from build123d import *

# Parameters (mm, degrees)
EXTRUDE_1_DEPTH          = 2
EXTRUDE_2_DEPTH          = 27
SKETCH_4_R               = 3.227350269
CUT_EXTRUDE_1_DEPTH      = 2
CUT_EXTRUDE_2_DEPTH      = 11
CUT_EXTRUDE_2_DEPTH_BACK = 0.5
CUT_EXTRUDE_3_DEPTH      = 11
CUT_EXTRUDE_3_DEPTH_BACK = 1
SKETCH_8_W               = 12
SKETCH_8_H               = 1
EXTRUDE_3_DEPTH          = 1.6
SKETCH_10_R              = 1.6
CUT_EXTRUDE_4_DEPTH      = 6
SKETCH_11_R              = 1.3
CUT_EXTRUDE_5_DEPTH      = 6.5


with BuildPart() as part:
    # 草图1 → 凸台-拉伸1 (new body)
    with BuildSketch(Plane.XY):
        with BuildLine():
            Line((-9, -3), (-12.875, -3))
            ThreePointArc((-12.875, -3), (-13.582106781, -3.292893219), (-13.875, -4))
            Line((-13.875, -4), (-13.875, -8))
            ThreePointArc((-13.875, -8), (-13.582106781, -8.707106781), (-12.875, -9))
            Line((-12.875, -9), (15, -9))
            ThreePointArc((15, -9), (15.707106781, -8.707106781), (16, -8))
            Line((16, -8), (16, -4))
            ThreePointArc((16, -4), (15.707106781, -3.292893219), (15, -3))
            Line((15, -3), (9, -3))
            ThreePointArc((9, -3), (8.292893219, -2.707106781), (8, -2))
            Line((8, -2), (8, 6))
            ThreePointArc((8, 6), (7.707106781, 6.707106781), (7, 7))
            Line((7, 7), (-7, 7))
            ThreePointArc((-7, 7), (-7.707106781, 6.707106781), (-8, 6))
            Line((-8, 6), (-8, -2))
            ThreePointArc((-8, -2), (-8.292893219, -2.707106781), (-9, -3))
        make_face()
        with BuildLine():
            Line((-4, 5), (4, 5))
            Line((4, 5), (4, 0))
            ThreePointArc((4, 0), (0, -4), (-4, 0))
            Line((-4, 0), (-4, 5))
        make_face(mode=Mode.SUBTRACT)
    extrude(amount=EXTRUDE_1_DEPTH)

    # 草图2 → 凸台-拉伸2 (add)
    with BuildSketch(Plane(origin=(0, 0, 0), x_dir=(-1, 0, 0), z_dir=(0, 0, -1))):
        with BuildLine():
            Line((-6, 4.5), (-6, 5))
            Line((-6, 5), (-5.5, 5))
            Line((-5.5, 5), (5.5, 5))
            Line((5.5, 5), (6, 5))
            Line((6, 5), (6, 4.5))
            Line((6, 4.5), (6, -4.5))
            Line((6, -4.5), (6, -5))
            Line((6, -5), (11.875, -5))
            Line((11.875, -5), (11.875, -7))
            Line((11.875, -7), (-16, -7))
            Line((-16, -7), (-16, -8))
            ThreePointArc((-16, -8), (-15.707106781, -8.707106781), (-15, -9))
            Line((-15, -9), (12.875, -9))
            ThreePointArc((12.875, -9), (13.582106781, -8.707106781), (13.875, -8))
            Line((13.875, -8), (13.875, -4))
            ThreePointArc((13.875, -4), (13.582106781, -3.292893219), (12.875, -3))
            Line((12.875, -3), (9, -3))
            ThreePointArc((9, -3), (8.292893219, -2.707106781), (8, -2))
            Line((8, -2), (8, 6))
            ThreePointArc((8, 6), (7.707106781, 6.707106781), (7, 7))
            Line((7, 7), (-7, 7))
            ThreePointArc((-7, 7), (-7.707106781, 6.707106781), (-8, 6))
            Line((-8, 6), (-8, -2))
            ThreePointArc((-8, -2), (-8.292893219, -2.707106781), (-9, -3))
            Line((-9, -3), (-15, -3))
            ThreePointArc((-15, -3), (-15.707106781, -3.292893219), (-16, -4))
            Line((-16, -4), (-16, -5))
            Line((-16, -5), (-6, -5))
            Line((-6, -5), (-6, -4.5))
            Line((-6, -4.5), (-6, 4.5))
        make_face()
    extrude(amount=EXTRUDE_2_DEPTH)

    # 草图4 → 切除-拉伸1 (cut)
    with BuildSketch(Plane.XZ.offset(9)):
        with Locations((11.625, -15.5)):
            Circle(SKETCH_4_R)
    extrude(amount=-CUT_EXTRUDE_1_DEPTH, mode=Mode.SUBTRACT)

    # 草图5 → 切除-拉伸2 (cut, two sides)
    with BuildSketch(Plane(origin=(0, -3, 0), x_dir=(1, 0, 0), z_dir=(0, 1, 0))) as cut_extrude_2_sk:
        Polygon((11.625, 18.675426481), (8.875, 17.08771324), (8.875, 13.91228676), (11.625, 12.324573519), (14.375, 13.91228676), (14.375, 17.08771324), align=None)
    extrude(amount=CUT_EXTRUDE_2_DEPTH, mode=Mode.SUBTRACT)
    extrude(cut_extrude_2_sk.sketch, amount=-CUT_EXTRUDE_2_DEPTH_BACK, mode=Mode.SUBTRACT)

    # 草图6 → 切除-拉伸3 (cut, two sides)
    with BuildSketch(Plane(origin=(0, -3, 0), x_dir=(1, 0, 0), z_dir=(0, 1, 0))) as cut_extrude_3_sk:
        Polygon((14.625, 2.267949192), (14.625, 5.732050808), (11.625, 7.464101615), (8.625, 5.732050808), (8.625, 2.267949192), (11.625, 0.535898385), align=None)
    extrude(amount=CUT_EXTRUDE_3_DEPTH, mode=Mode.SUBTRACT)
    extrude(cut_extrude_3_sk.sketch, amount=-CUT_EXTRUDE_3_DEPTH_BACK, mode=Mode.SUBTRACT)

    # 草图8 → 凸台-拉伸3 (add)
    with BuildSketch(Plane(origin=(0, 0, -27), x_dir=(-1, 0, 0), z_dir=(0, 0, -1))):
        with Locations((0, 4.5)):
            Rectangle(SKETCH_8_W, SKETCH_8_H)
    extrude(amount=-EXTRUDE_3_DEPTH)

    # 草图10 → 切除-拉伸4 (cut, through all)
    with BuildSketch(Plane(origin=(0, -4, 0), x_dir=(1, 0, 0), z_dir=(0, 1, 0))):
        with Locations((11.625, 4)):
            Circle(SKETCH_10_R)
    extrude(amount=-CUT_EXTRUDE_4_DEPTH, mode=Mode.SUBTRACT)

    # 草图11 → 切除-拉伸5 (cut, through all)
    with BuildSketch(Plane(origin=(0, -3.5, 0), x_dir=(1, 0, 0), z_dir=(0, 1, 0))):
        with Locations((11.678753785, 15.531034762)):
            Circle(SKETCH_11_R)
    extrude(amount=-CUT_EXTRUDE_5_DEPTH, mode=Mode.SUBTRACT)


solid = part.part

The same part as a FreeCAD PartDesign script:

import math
import FreeCAD as App
import Part
import Sketcher
from FreeCAD import Vector
Q = App.Units.Quantity

doc = App.newDocument("Part")
body = doc.addObject("PartDesign::Body", "Body")

sketch1 = body.newObject("Sketcher::SketchObject", "Sketch")
sketch1.AttachmentSupport = (doc.getObject("XY_Plane"), [""])
sketch1.MapMode = "FlatFace"
sketch1.addGeometry([
    Part.LineSegment(Vector(-9, -3, 0), Vector(-12.9, -3, 0)),
    Part.ArcOfCircle(Part.Circle(Vector(-12.9, -4, 0), Vector(0, 0, 1), 1), math.radians(90), math.radians(180)),
    Part.LineSegment(Vector(-13.9, -4, 0), Vector(-13.9, -8, 0)),
    Part.ArcOfCircle(Part.Circle(Vector(-12.9, -8, 0), Vector(0, 0, 1), 1), math.radians(-180), math.radians(-90)),
    Part.LineSegment(Vector(-12.9, -9, 0), Vector(15, -9, 0)),
    Part.ArcOfCircle(Part.Circle(Vector(15, -8, 0), Vector(0, 0, 1), 1), math.radians(-90), math.radians(0)),
    Part.LineSegment(Vector(16, -8, 0), Vector(16, -4, 0)),
    Part.ArcOfCircle(Part.Circle(Vector(15, -4, 0), Vector(0, 0, 1), 1), math.radians(0), math.radians(90)),
    Part.LineSegment(Vector(15, -3, 0), Vector(9, -3, 0)),
    Part.ArcOfCircle(Part.Circle(Vector(9, -2, 0), Vector(0, 0, 1), 1), math.radians(-180), math.radians(-90)),
    Part.LineSegment(Vector(8, -2, 0), Vector(8, 6, 0)),
    Part.ArcOfCircle(Part.Circle(Vector(7, 6, 0), Vector(0, 0, 1), 1), math.radians(0), math.radians(90)),
    Part.LineSegment(Vector(7, 7, 0), Vector(-7, 7, 0)),
    Part.ArcOfCircle(Part.Circle(Vector(-7, 6, 0), Vector(0, 0, 1), 1), math.radians(90), math.radians(180)),
    Part.LineSegment(Vector(-8, 6, 0), Vector(-8, -2, 0)),
    Part.ArcOfCircle(Part.Circle(Vector(-9, -2, 0), Vector(0, 0, 1), 1), math.radians(-90), math.radians(0)),
    Part.LineSegment(Vector(-4, 0, 0), Vector(-4, 5, 0)),
    Part.LineSegment(Vector(-4, 5, 0), Vector(4, 5, 0)),
    Part.LineSegment(Vector(4, 5, 0), Vector(4, 0, 0)),
    Part.ArcOfCircle(Part.Circle(Vector(0, 0, 0), Vector(0, 0, 1), 4), math.radians(180), math.radians(360)),
], False)
sketch1.addConstraint([
    Sketcher.Constraint("Tangent", 0, 2, 1, 1),
    Sketcher.Constraint("Tangent", 1, 2, 2, 1),
    Sketcher.Constraint("Tangent", 2, 2, 3, 1),
    Sketcher.Constraint("Tangent", 3, 2, 4, 1),
    Sketcher.Constraint("Tangent", 4, 2, 5, 1),
    Sketcher.Constraint("Tangent", 5, 2, 6, 1),
    Sketcher.Constraint("Tangent", 6, 2, 7, 1),
    Sketcher.Constraint("Tangent", 7, 2, 8, 1),
    Sketcher.Constraint("Tangent", 8, 2, 9, 2),
    Sketcher.Constraint("Tangent", 9, 1, 10, 1),
    Sketcher.Constraint("Tangent", 10, 2, 11, 1),
    Sketcher.Constraint("Tangent", 11, 2, 12, 1),
    Sketcher.Constraint("Tangent", 12, 2, 13, 1),
    Sketcher.Constraint("Tangent", 13, 2, 14, 1),
    Sketcher.Constraint("Tangent", 14, 2, 15, 2),
    Sketcher.Constraint("Tangent", 15, 1, 0, 1),
    Sketcher.Constraint("Coincident", 16, 2, 17, 1),
    Sketcher.Constraint("Coincident", 17, 2, 18, 1),
    Sketcher.Constraint("Tangent", 18, 2, 19, 2),
    Sketcher.Constraint("Tangent", 19, 1, 16, 1),
    Sketcher.Constraint("Horizontal", 0),
    Sketcher.Constraint("Vertical", 2),
    Sketcher.Constraint("Horizontal", 4),
    Sketcher.Constraint("Vertical", 6),
    Sketcher.Constraint("Horizontal", 8),
    Sketcher.Constraint("Vertical", 10),
    Sketcher.Constraint("Horizontal", 12),
    Sketcher.Constraint("Vertical", 14),
    Sketcher.Constraint("Vertical", 16),
    Sketcher.Constraint("Horizontal", 17),
    Sketcher.Constraint("Vertical", 18),
    Sketcher.Constraint("Coincident", 19, 3, -1, 1),
    Sketcher.Constraint("Equal", 1, 3),
    Sketcher.Constraint("Equal", 3, 5),
    Sketcher.Constraint("Equal", 5, 7),
    Sketcher.Constraint("Equal", 7, 9),
    Sketcher.Constraint("Equal", 9, 11),
    Sketcher.Constraint("Equal", 11, 13),
    Sketcher.Constraint("Equal", 13, 15),
    Sketcher.Constraint("Symmetric", 9, 3, 15, 3, -2),
    Sketcher.Constraint("Equal", 17, 10),
    Sketcher.Constraint("Radius", 1, Q("1 mm")),
    Sketcher.Constraint("Radius", 19, Q("4 mm")),
    Sketcher.Constraint("DistanceX", 8, 2, 8, 1, Q("6 mm")),
    Sketcher.Constraint("DistanceX", 12, 2, 12, 1, Q("14 mm")),
    Sketcher.Constraint("DistanceY", 2, 2, 2, 1, Q("4 mm")),
    Sketcher.Constraint("DistanceY", 16, 1, 16, 2, Q("5 mm")),
    Sketcher.Constraint("DistanceY", 1, 3, -1, 1, Q("4 mm")),
    Sketcher.Constraint("DistanceX", 0, 2, 0, 1, Q("3.875 mm")),
])
pad1 = body.newObject("PartDesign::Pad", "Pad")
pad1.Profile = sketch1
pad1.Length = 2

sketch2 = body.newObject("Sketcher::SketchObject", "Sketch001")
sketch2.AttachmentSupport = (doc.getObject("XY_Plane"), [""])
sketch2.MapMode = "FlatFace"
sketch2.addGeometry([
    Part.LineSegment(Vector(6, 5, 0), Vector(-6, 5, 0)),
    Part.LineSegment(Vector(-6, 5, 0), Vector(-6, -5, 0)),
    Part.LineSegment(Vector(-6, -5, 0), Vector(-11.9, -5, 0)),
    Part.LineSegment(Vector(-11.9, -5, 0), Vector(-11.9, -7, 0)),
    Part.LineSegment(Vector(-11.9, -7, 0), Vector(16, -7, 0)),
    Part.LineSegment(Vector(16, -7, 0), Vector(16, -8, 0)),
    Part.ArcOfCircle(Part.Circle(Vector(15, -8, 0), Vector(0, 0, 1), 1), math.radians(-90), math.radians(0)),
    Part.LineSegment(Vector(15, -9, 0), Vector(-12.9, -9, 0)),
    Part.ArcOfCircle(Part.Circle(Vector(-12.9, -8, 0), Vector(0, 0, 1), 1), math.radians(-180), math.radians(-90)),
    Part.LineSegment(Vector(-13.9, -8, 0), Vector(-13.9, -4, 0)),
    Part.ArcOfCircle(Part.Circle(Vector(-12.9, -4, 0), Vector(0, 0, 1), 1), math.radians(90), math.radians(180)),
    Part.LineSegment(Vector(-12.9, -3, 0), Vector(-9, -3, 0)),
    Part.ArcOfCircle(Part.Circle(Vector(-9, -2, 0), Vector(0, 0, 1), 1), math.radians(-90), math.radians(0)),
    Part.LineSegment(Vector(-8, -2, 0), Vector(-8, 6, 0)),
    Part.ArcOfCircle(Part.Circle(Vector(-7, 6, 0), Vector(0, 0, 1), 1), math.radians(90), math.radians(180)),
    Part.LineSegment(Vector(-7, 7, 0), Vector(7, 7, 0)),
    Part.ArcOfCircle(Part.Circle(Vector(7, 6, 0), Vector(0, 0, 1), 1), math.radians(0), math.radians(90)),
    Part.LineSegment(Vector(8, 6, 0), Vector(8, -2, 0)),
    Part.ArcOfCircle(Part.Circle(Vector(9, -2, 0), Vector(0, 0, 1), 1), math.radians(-180), math.radians(-90)),
    Part.LineSegment(Vector(9, -3, 0), Vector(15, -3, 0)),
    Part.ArcOfCircle(Part.Circle(Vector(15, -4, 0), Vector(0, 0, 1), 1), math.radians(0), math.radians(90)),
    Part.LineSegment(Vector(16, -4, 0), Vector(16, -5, 0)),
    Part.LineSegment(Vector(16, -5, 0), Vector(6, -5, 0)),
    Part.LineSegment(Vector(6, -5, 0), Vector(6, 5, 0)),
], False)
sketch2.addConstraint([
    Sketcher.Constraint("Coincident", 0, 2, 1, 1),
    Sketcher.Constraint("Coincident", 1, 2, 2, 1),
    Sketcher.Constraint("Coincident", 2, 2, 3, 1),
    Sketcher.Constraint("Coincident", 3, 2, 4, 1),
    Sketcher.Constraint("Coincident", 4, 2, 5, 1),
    Sketcher.Constraint("Tangent", 5, 2, 6, 2),
    Sketcher.Constraint("Tangent", 6, 1, 7, 1),
    Sketcher.Constraint("Tangent", 7, 2, 8, 2),
    Sketcher.Constraint("Tangent", 8, 1, 9, 1),
    Sketcher.Constraint("Tangent", 9, 2, 10, 2),
    Sketcher.Constraint("Tangent", 10, 1, 11, 1),
    Sketcher.Constraint("Tangent", 11, 2, 12, 1),
    Sketcher.Constraint("Tangent", 12, 2, 13, 1),
    Sketcher.Constraint("Tangent", 13, 2, 14, 2),
    Sketcher.Constraint("Tangent", 14, 1, 15, 1),
    Sketcher.Constraint("Tangent", 15, 2, 16, 2),
    Sketcher.Constraint("Tangent", 16, 1, 17, 1),
    Sketcher.Constraint("Tangent", 17, 2, 18, 1),
    Sketcher.Constraint("Tangent", 18, 2, 19, 1),
    Sketcher.Constraint("Tangent", 19, 2, 20, 2),
    Sketcher.Constraint("Tangent", 20, 1, 21, 1),
    Sketcher.Constraint("Coincident", 21, 2, 22, 1),
    Sketcher.Constraint("Coincident", 22, 2, 23, 1),
    Sketcher.Constraint("Coincident", 23, 2, 0, 1),
    Sketcher.Constraint("Horizontal", 0),
    Sketcher.Constraint("Vertical", 1),
    Sketcher.Constraint("Horizontal", 2),
    Sketcher.Constraint("Vertical", 3),
    Sketcher.Constraint("Horizontal", 4),
    Sketcher.Constraint("Vertical", 5),
    Sketcher.Constraint("Horizontal", 7),
    Sketcher.Constraint("Vertical", 9),
    Sketcher.Constraint("Horizontal", 11),
    Sketcher.Constraint("Vertical", 13),
    Sketcher.Constraint("Horizontal", 15),
    Sketcher.Constraint("Vertical", 17),
    Sketcher.Constraint("Horizontal", 19),
    Sketcher.Constraint("Vertical", 21),
    Sketcher.Constraint("Horizontal", 22),
    Sketcher.Constraint("Vertical", 23),
    Sketcher.Constraint("Equal", 6, 8),
    Sketcher.Constraint("Equal", 8, 10),
    Sketcher.Constraint("Equal", 10, 12),
    Sketcher.Constraint("Equal", 12, 14),
    Sketcher.Constraint("Equal", 14, 16),
    Sketcher.Constraint("Equal", 16, 18),
    Sketcher.Constraint("Equal", 18, 20),
    Sketcher.Constraint("Symmetric", 0, 2, 22, 2, -1, 1),
    Sketcher.Constraint("Symmetric", 12, 3, 18, 3, -2),
    Sketcher.Constraint("Horizontal", 2, 2, 21, 2),
    Sketcher.Constraint("Vertical", 6, 3, 20, 3),
    Sketcher.Constraint("Equal", 4, 7),
    Sketcher.Constraint("Equal", 22, 1),
    Sketcher.Constraint("Equal", 5, 21),
    Sketcher.Constraint("Radius", 6, Q("1 mm")),
    Sketcher.Constraint("DistanceX", 0, 2, 0, 1, Q("12 mm")),
    Sketcher.Constraint("DistanceX", 15, 1, 15, 2, Q("14 mm")),
    Sketcher.Constraint("DistanceX", 19, 1, 19, 2, Q("6 mm")),
    Sketcher.Constraint("DistanceY", 3, 2, 3, 1, Q("2 mm")),
    Sketcher.Constraint("DistanceY", 5, 2, 5, 1, Q("1 mm")),
    Sketcher.Constraint("DistanceY", 13, 1, 13, 2, Q("8 mm")),
    Sketcher.Constraint("DistanceX", 2, 2, 2, 1, Q("5.875 mm")),
])
pad2 = body.newObject("PartDesign::Pad", "Pad001")
pad2.Profile = sketch2
pad2.Length = 27
pad2.Reversed = True

sketch3 = body.newObject("Sketcher::SketchObject", "Sketch002")
sketch3.AttachmentSupport = (doc.getObject("XZ_Plane"), [""])
sketch3.MapMode = "FlatFace"
sketch3.AttachmentOffset = App.Placement(Vector(0, 0, 9), App.Rotation())
sketch3.addGeometry(Part.Circle(Vector(11.6, -15.5, 0), Vector(0, 0, 1), 3.2), False)
sketch3.addConstraint([
    Sketcher.Constraint("Diameter", 0, Q("6.454701 mm")),
    Sketcher.Constraint("DistanceY", 0, 3, -1, 1, Q("15.5 mm")),
    Sketcher.Constraint("DistanceX", -1, 1, 0, 3, Q("11.625 mm")),
])
pocket1 = body.newObject("PartDesign::Pocket", "Pocket")
pocket1.Profile = sketch3
pocket1.Length = 2

sketch4 = body.newObject("Sketcher::SketchObject", "Sketch003")
sketch4.AttachmentSupport = (doc.getObject("XZ_Plane"), [""])
sketch4.MapMode = "FlatFace"
sketch4.AttachmentOffset = App.Placement(Vector(0, 0, 3), App.Rotation())
sketch4.addGeometry([
    Part.LineSegment(Vector(11.6, -18.7, 0), Vector(8.9, -17.1, 0)),
    Part.LineSegment(Vector(8.9, -17.1, 0), Vector(8.9, -13.9, 0)),
    Part.LineSegment(Vector(8.9, -13.9, 0), Vector(11.6, -12.3, 0)),
    Part.LineSegment(Vector(11.6, -12.3, 0), Vector(14.4, -13.9, 0)),
    Part.LineSegment(Vector(14.4, -13.9, 0), Vector(14.4, -17.1, 0)),
    Part.LineSegment(Vector(14.4, -17.1, 0), Vector(11.6, -18.7, 0)),
], False)
sketch4.addConstraint([
    Sketcher.Constraint("Coincident", 0, 2, 1, 1),
    Sketcher.Constraint("Coincident", 1, 2, 2, 1),
    Sketcher.Constraint("Coincident", 2, 2, 3, 1),
    Sketcher.Constraint("Coincident", 3, 2, 4, 1),
    Sketcher.Constraint("Coincident", 4, 2, 5, 1),
    Sketcher.Constraint("Coincident", 5, 2, 0, 1),
    Sketcher.Constraint("Vertical", 1),
    Sketcher.Constraint("Vertical", 4),
    Sketcher.Constraint("Parallel", 0, 3),
    Sketcher.Constraint("Parallel", 2, 5),
    Sketcher.Constraint("Horizontal", 1, 2, 3, 2),
    Sketcher.Constraint("Horizontal", 0, 2, 4, 2),
    Sketcher.Constraint("Vertical", 2, 2, 5, 2),
    Sketcher.Constraint("Angle", 0, Q("150 deg")),
    Sketcher.Constraint("DistanceX", 1, 2, 3, 2, Q("5.5 mm")),
    Sketcher.Constraint("DistanceX", -1, 1, 0, 2, Q("8.875 mm")),
    Sketcher.Constraint("DistanceY", 1, 1, 1, 2, Q("3.175426 mm")),
    Sketcher.Constraint("DistanceY", 0, 2, -1, 1, Q("17.087713 mm")),
])
pocket2 = body.newObject("PartDesign::Pocket", "Pocket001")
pocket2.Profile = sketch4
pocket2.Type = "TwoLengths"
pocket2.Length = 11
pocket2.Length2 = 0.5

sketch5 = body.newObject("Sketcher::SketchObject", "Sketch004")
sketch5.AttachmentSupport = (doc.getObject("XZ_Plane"), [""])
sketch5.MapMode = "FlatFace"
sketch5.AttachmentOffset = App.Placement(Vector(0, 0, 3), App.Rotation())
sketch5.addGeometry([
    Part.LineSegment(Vector(14.6, -2.3, 0), Vector(14.6, -5.7, 0)),
    Part.LineSegment(Vector(14.6, -5.7, 0), Vector(11.6, -7.5, 0)),
    Part.LineSegment(Vector(11.6, -7.5, 0), Vector(8.6, -5.7, 0)),
    Part.LineSegment(Vector(8.6, -5.7, 0), Vector(8.6, -2.3, 0)),
    Part.LineSegment(Vector(8.6, -2.3, 0), Vector(11.6, -0.5, 0)),
    Part.LineSegment(Vector(11.6, -0.5, 0), Vector(14.6, -2.3, 0)),
], False)
sketch5.addConstraint([
    Sketcher.Constraint("Coincident", 0, 2, 1, 1),
    Sketcher.Constraint("Coincident", 1, 2, 2, 1),
    Sketcher.Constraint("Coincident", 2, 2, 3, 1),
    Sketcher.Constraint("Coincident", 3, 2, 4, 1),
    Sketcher.Constraint("Coincident", 4, 2, 5, 1),
    Sketcher.Constraint("Coincident", 5, 2, 0, 1),
    Sketcher.Constraint("Vertical", 0),
    Sketcher.Constraint("Vertical", 3),
    Sketcher.Constraint("Parallel", 1, 4),
    Sketcher.Constraint("Parallel", 2, 5),
    Sketcher.Constraint("Horizontal", 0, 2, 2, 2),
    Sketcher.Constraint("Horizontal", 3, 2, 5, 2),
    Sketcher.Constraint("Vertical", 1, 2, 4, 2),
    Sketcher.Constraint("Angle", 1, Q("-150 deg")),
    Sketcher.Constraint("DistanceX", 1, 2, 0, 2, Q("3 mm")),
    Sketcher.Constraint("DistanceY", 0, 2, 0, 1, Q("3.464102 mm")),
    Sketcher.Constraint("DistanceX", -1, 1, 0, 2, Q("14.625 mm")),
    Sketcher.Constraint("DistanceY", 1, 2, -1, 1, Q("7.464102 mm")),
])
pocket3 = body.newObject("PartDesign::Pocket", "Pocket002")
pocket3.Profile = sketch5
pocket3.Type = "TwoLengths"
pocket3.Length = 11
pocket3.Length2 = 1

sketch6 = body.newObject("Sketcher::SketchObject", "Sketch005")
sketch6.AttachmentSupport = (doc.getObject("XY_Plane"), [""])
sketch6.MapMode = "FlatFace"
sketch6.AttachmentOffset = App.Placement(Vector(0, 0, -27), App.Rotation())
sketch6.addGeometry([
    Part.LineSegment(Vector(6, 5, 0), Vector(6, 4, 0)),
    Part.LineSegment(Vector(6, 4, 0), Vector(-6, 4, 0)),
    Part.LineSegment(Vector(-6, 4, 0), Vector(-6, 5, 0)),
    Part.LineSegment(Vector(-6, 5, 0), Vector(6, 5, 0)),
], False)
sketch6.addConstraint([
    Sketcher.Constraint("Coincident", 0, 2, 1, 1),
    Sketcher.Constraint("Coincident", 1, 2, 2, 1),
    Sketcher.Constraint("Coincident", 2, 2, 3, 1),
    Sketcher.Constraint("Coincident", 3, 2, 0, 1),
    Sketcher.Constraint("Vertical", 0),
    Sketcher.Constraint("Horizontal", 1),
    Sketcher.Constraint("Vertical", 2),
    Sketcher.Constraint("Horizontal", 3),
    Sketcher.Constraint("DistanceX", 1, 2, 1, 1, Q("12 mm")),
    Sketcher.Constraint("DistanceY", 0, 2, 0, 1, Q("1 mm")),
    Sketcher.Constraint("DistanceX", -1, 1, 0, 2, Q("6 mm")),
    Sketcher.Constraint("DistanceY", -1, 1, 0, 2, Q("4 mm")),
])
pad3 = body.newObject("PartDesign::Pad", "Pad002")
pad3.Profile = sketch6
pad3.Length = 1.6

sketch7 = body.newObject("Sketcher::SketchObject", "Sketch006")
sketch7.AttachmentSupport = (doc.getObject("XZ_Plane"), [""])
sketch7.MapMode = "FlatFace"
sketch7.AttachmentOffset = App.Placement(Vector(0, 0, 4), App.Rotation())
sketch7.addGeometry(Part.Circle(Vector(11.6, -4, 0), Vector(0, 0, 1), 1.6), False)
sketch7.addConstraint([
    Sketcher.Constraint("Diameter", 0, Q("3.2 mm")),
    Sketcher.Constraint("DistanceY", 0, 3, -1, 1, Q("4 mm")),
    Sketcher.Constraint("DistanceX", -1, 1, 0, 3, Q("11.625 mm")),
])
pocket4 = body.newObject("PartDesign::Pocket", "Pocket003")
pocket4.Profile = sketch7
pocket4.Type = "ThroughAll"
pocket4.Reversed = True

sketch8 = body.newObject("Sketcher::SketchObject", "Sketch007")
sketch8.AttachmentSupport = (doc.getObject("XZ_Plane"), [""])
sketch8.MapMode = "FlatFace"
sketch8.AttachmentOffset = App.Placement(Vector(0, 0, 3.5), App.Rotation())
sketch8.addGeometry(Part.Circle(Vector(11.7, -15.5, 0), Vector(0, 0, 1), 1.3), False)
sketch8.addConstraint([
    Sketcher.Constraint("Diameter", 0, Q("2.6 mm")),
    Sketcher.Constraint("DistanceX", -1, 1, 0, 3, Q("11.678754 mm")),
    Sketcher.Constraint("DistanceY", 0, 3, -1, 1, Q("15.531035 mm")),
])
pocket5 = body.newObject("PartDesign::Pocket", "Pocket004")
pocket5.Profile = sketch8
pocket5.Type = "ThroughAll"
pocket5.Reversed = True

doc.recompute()
